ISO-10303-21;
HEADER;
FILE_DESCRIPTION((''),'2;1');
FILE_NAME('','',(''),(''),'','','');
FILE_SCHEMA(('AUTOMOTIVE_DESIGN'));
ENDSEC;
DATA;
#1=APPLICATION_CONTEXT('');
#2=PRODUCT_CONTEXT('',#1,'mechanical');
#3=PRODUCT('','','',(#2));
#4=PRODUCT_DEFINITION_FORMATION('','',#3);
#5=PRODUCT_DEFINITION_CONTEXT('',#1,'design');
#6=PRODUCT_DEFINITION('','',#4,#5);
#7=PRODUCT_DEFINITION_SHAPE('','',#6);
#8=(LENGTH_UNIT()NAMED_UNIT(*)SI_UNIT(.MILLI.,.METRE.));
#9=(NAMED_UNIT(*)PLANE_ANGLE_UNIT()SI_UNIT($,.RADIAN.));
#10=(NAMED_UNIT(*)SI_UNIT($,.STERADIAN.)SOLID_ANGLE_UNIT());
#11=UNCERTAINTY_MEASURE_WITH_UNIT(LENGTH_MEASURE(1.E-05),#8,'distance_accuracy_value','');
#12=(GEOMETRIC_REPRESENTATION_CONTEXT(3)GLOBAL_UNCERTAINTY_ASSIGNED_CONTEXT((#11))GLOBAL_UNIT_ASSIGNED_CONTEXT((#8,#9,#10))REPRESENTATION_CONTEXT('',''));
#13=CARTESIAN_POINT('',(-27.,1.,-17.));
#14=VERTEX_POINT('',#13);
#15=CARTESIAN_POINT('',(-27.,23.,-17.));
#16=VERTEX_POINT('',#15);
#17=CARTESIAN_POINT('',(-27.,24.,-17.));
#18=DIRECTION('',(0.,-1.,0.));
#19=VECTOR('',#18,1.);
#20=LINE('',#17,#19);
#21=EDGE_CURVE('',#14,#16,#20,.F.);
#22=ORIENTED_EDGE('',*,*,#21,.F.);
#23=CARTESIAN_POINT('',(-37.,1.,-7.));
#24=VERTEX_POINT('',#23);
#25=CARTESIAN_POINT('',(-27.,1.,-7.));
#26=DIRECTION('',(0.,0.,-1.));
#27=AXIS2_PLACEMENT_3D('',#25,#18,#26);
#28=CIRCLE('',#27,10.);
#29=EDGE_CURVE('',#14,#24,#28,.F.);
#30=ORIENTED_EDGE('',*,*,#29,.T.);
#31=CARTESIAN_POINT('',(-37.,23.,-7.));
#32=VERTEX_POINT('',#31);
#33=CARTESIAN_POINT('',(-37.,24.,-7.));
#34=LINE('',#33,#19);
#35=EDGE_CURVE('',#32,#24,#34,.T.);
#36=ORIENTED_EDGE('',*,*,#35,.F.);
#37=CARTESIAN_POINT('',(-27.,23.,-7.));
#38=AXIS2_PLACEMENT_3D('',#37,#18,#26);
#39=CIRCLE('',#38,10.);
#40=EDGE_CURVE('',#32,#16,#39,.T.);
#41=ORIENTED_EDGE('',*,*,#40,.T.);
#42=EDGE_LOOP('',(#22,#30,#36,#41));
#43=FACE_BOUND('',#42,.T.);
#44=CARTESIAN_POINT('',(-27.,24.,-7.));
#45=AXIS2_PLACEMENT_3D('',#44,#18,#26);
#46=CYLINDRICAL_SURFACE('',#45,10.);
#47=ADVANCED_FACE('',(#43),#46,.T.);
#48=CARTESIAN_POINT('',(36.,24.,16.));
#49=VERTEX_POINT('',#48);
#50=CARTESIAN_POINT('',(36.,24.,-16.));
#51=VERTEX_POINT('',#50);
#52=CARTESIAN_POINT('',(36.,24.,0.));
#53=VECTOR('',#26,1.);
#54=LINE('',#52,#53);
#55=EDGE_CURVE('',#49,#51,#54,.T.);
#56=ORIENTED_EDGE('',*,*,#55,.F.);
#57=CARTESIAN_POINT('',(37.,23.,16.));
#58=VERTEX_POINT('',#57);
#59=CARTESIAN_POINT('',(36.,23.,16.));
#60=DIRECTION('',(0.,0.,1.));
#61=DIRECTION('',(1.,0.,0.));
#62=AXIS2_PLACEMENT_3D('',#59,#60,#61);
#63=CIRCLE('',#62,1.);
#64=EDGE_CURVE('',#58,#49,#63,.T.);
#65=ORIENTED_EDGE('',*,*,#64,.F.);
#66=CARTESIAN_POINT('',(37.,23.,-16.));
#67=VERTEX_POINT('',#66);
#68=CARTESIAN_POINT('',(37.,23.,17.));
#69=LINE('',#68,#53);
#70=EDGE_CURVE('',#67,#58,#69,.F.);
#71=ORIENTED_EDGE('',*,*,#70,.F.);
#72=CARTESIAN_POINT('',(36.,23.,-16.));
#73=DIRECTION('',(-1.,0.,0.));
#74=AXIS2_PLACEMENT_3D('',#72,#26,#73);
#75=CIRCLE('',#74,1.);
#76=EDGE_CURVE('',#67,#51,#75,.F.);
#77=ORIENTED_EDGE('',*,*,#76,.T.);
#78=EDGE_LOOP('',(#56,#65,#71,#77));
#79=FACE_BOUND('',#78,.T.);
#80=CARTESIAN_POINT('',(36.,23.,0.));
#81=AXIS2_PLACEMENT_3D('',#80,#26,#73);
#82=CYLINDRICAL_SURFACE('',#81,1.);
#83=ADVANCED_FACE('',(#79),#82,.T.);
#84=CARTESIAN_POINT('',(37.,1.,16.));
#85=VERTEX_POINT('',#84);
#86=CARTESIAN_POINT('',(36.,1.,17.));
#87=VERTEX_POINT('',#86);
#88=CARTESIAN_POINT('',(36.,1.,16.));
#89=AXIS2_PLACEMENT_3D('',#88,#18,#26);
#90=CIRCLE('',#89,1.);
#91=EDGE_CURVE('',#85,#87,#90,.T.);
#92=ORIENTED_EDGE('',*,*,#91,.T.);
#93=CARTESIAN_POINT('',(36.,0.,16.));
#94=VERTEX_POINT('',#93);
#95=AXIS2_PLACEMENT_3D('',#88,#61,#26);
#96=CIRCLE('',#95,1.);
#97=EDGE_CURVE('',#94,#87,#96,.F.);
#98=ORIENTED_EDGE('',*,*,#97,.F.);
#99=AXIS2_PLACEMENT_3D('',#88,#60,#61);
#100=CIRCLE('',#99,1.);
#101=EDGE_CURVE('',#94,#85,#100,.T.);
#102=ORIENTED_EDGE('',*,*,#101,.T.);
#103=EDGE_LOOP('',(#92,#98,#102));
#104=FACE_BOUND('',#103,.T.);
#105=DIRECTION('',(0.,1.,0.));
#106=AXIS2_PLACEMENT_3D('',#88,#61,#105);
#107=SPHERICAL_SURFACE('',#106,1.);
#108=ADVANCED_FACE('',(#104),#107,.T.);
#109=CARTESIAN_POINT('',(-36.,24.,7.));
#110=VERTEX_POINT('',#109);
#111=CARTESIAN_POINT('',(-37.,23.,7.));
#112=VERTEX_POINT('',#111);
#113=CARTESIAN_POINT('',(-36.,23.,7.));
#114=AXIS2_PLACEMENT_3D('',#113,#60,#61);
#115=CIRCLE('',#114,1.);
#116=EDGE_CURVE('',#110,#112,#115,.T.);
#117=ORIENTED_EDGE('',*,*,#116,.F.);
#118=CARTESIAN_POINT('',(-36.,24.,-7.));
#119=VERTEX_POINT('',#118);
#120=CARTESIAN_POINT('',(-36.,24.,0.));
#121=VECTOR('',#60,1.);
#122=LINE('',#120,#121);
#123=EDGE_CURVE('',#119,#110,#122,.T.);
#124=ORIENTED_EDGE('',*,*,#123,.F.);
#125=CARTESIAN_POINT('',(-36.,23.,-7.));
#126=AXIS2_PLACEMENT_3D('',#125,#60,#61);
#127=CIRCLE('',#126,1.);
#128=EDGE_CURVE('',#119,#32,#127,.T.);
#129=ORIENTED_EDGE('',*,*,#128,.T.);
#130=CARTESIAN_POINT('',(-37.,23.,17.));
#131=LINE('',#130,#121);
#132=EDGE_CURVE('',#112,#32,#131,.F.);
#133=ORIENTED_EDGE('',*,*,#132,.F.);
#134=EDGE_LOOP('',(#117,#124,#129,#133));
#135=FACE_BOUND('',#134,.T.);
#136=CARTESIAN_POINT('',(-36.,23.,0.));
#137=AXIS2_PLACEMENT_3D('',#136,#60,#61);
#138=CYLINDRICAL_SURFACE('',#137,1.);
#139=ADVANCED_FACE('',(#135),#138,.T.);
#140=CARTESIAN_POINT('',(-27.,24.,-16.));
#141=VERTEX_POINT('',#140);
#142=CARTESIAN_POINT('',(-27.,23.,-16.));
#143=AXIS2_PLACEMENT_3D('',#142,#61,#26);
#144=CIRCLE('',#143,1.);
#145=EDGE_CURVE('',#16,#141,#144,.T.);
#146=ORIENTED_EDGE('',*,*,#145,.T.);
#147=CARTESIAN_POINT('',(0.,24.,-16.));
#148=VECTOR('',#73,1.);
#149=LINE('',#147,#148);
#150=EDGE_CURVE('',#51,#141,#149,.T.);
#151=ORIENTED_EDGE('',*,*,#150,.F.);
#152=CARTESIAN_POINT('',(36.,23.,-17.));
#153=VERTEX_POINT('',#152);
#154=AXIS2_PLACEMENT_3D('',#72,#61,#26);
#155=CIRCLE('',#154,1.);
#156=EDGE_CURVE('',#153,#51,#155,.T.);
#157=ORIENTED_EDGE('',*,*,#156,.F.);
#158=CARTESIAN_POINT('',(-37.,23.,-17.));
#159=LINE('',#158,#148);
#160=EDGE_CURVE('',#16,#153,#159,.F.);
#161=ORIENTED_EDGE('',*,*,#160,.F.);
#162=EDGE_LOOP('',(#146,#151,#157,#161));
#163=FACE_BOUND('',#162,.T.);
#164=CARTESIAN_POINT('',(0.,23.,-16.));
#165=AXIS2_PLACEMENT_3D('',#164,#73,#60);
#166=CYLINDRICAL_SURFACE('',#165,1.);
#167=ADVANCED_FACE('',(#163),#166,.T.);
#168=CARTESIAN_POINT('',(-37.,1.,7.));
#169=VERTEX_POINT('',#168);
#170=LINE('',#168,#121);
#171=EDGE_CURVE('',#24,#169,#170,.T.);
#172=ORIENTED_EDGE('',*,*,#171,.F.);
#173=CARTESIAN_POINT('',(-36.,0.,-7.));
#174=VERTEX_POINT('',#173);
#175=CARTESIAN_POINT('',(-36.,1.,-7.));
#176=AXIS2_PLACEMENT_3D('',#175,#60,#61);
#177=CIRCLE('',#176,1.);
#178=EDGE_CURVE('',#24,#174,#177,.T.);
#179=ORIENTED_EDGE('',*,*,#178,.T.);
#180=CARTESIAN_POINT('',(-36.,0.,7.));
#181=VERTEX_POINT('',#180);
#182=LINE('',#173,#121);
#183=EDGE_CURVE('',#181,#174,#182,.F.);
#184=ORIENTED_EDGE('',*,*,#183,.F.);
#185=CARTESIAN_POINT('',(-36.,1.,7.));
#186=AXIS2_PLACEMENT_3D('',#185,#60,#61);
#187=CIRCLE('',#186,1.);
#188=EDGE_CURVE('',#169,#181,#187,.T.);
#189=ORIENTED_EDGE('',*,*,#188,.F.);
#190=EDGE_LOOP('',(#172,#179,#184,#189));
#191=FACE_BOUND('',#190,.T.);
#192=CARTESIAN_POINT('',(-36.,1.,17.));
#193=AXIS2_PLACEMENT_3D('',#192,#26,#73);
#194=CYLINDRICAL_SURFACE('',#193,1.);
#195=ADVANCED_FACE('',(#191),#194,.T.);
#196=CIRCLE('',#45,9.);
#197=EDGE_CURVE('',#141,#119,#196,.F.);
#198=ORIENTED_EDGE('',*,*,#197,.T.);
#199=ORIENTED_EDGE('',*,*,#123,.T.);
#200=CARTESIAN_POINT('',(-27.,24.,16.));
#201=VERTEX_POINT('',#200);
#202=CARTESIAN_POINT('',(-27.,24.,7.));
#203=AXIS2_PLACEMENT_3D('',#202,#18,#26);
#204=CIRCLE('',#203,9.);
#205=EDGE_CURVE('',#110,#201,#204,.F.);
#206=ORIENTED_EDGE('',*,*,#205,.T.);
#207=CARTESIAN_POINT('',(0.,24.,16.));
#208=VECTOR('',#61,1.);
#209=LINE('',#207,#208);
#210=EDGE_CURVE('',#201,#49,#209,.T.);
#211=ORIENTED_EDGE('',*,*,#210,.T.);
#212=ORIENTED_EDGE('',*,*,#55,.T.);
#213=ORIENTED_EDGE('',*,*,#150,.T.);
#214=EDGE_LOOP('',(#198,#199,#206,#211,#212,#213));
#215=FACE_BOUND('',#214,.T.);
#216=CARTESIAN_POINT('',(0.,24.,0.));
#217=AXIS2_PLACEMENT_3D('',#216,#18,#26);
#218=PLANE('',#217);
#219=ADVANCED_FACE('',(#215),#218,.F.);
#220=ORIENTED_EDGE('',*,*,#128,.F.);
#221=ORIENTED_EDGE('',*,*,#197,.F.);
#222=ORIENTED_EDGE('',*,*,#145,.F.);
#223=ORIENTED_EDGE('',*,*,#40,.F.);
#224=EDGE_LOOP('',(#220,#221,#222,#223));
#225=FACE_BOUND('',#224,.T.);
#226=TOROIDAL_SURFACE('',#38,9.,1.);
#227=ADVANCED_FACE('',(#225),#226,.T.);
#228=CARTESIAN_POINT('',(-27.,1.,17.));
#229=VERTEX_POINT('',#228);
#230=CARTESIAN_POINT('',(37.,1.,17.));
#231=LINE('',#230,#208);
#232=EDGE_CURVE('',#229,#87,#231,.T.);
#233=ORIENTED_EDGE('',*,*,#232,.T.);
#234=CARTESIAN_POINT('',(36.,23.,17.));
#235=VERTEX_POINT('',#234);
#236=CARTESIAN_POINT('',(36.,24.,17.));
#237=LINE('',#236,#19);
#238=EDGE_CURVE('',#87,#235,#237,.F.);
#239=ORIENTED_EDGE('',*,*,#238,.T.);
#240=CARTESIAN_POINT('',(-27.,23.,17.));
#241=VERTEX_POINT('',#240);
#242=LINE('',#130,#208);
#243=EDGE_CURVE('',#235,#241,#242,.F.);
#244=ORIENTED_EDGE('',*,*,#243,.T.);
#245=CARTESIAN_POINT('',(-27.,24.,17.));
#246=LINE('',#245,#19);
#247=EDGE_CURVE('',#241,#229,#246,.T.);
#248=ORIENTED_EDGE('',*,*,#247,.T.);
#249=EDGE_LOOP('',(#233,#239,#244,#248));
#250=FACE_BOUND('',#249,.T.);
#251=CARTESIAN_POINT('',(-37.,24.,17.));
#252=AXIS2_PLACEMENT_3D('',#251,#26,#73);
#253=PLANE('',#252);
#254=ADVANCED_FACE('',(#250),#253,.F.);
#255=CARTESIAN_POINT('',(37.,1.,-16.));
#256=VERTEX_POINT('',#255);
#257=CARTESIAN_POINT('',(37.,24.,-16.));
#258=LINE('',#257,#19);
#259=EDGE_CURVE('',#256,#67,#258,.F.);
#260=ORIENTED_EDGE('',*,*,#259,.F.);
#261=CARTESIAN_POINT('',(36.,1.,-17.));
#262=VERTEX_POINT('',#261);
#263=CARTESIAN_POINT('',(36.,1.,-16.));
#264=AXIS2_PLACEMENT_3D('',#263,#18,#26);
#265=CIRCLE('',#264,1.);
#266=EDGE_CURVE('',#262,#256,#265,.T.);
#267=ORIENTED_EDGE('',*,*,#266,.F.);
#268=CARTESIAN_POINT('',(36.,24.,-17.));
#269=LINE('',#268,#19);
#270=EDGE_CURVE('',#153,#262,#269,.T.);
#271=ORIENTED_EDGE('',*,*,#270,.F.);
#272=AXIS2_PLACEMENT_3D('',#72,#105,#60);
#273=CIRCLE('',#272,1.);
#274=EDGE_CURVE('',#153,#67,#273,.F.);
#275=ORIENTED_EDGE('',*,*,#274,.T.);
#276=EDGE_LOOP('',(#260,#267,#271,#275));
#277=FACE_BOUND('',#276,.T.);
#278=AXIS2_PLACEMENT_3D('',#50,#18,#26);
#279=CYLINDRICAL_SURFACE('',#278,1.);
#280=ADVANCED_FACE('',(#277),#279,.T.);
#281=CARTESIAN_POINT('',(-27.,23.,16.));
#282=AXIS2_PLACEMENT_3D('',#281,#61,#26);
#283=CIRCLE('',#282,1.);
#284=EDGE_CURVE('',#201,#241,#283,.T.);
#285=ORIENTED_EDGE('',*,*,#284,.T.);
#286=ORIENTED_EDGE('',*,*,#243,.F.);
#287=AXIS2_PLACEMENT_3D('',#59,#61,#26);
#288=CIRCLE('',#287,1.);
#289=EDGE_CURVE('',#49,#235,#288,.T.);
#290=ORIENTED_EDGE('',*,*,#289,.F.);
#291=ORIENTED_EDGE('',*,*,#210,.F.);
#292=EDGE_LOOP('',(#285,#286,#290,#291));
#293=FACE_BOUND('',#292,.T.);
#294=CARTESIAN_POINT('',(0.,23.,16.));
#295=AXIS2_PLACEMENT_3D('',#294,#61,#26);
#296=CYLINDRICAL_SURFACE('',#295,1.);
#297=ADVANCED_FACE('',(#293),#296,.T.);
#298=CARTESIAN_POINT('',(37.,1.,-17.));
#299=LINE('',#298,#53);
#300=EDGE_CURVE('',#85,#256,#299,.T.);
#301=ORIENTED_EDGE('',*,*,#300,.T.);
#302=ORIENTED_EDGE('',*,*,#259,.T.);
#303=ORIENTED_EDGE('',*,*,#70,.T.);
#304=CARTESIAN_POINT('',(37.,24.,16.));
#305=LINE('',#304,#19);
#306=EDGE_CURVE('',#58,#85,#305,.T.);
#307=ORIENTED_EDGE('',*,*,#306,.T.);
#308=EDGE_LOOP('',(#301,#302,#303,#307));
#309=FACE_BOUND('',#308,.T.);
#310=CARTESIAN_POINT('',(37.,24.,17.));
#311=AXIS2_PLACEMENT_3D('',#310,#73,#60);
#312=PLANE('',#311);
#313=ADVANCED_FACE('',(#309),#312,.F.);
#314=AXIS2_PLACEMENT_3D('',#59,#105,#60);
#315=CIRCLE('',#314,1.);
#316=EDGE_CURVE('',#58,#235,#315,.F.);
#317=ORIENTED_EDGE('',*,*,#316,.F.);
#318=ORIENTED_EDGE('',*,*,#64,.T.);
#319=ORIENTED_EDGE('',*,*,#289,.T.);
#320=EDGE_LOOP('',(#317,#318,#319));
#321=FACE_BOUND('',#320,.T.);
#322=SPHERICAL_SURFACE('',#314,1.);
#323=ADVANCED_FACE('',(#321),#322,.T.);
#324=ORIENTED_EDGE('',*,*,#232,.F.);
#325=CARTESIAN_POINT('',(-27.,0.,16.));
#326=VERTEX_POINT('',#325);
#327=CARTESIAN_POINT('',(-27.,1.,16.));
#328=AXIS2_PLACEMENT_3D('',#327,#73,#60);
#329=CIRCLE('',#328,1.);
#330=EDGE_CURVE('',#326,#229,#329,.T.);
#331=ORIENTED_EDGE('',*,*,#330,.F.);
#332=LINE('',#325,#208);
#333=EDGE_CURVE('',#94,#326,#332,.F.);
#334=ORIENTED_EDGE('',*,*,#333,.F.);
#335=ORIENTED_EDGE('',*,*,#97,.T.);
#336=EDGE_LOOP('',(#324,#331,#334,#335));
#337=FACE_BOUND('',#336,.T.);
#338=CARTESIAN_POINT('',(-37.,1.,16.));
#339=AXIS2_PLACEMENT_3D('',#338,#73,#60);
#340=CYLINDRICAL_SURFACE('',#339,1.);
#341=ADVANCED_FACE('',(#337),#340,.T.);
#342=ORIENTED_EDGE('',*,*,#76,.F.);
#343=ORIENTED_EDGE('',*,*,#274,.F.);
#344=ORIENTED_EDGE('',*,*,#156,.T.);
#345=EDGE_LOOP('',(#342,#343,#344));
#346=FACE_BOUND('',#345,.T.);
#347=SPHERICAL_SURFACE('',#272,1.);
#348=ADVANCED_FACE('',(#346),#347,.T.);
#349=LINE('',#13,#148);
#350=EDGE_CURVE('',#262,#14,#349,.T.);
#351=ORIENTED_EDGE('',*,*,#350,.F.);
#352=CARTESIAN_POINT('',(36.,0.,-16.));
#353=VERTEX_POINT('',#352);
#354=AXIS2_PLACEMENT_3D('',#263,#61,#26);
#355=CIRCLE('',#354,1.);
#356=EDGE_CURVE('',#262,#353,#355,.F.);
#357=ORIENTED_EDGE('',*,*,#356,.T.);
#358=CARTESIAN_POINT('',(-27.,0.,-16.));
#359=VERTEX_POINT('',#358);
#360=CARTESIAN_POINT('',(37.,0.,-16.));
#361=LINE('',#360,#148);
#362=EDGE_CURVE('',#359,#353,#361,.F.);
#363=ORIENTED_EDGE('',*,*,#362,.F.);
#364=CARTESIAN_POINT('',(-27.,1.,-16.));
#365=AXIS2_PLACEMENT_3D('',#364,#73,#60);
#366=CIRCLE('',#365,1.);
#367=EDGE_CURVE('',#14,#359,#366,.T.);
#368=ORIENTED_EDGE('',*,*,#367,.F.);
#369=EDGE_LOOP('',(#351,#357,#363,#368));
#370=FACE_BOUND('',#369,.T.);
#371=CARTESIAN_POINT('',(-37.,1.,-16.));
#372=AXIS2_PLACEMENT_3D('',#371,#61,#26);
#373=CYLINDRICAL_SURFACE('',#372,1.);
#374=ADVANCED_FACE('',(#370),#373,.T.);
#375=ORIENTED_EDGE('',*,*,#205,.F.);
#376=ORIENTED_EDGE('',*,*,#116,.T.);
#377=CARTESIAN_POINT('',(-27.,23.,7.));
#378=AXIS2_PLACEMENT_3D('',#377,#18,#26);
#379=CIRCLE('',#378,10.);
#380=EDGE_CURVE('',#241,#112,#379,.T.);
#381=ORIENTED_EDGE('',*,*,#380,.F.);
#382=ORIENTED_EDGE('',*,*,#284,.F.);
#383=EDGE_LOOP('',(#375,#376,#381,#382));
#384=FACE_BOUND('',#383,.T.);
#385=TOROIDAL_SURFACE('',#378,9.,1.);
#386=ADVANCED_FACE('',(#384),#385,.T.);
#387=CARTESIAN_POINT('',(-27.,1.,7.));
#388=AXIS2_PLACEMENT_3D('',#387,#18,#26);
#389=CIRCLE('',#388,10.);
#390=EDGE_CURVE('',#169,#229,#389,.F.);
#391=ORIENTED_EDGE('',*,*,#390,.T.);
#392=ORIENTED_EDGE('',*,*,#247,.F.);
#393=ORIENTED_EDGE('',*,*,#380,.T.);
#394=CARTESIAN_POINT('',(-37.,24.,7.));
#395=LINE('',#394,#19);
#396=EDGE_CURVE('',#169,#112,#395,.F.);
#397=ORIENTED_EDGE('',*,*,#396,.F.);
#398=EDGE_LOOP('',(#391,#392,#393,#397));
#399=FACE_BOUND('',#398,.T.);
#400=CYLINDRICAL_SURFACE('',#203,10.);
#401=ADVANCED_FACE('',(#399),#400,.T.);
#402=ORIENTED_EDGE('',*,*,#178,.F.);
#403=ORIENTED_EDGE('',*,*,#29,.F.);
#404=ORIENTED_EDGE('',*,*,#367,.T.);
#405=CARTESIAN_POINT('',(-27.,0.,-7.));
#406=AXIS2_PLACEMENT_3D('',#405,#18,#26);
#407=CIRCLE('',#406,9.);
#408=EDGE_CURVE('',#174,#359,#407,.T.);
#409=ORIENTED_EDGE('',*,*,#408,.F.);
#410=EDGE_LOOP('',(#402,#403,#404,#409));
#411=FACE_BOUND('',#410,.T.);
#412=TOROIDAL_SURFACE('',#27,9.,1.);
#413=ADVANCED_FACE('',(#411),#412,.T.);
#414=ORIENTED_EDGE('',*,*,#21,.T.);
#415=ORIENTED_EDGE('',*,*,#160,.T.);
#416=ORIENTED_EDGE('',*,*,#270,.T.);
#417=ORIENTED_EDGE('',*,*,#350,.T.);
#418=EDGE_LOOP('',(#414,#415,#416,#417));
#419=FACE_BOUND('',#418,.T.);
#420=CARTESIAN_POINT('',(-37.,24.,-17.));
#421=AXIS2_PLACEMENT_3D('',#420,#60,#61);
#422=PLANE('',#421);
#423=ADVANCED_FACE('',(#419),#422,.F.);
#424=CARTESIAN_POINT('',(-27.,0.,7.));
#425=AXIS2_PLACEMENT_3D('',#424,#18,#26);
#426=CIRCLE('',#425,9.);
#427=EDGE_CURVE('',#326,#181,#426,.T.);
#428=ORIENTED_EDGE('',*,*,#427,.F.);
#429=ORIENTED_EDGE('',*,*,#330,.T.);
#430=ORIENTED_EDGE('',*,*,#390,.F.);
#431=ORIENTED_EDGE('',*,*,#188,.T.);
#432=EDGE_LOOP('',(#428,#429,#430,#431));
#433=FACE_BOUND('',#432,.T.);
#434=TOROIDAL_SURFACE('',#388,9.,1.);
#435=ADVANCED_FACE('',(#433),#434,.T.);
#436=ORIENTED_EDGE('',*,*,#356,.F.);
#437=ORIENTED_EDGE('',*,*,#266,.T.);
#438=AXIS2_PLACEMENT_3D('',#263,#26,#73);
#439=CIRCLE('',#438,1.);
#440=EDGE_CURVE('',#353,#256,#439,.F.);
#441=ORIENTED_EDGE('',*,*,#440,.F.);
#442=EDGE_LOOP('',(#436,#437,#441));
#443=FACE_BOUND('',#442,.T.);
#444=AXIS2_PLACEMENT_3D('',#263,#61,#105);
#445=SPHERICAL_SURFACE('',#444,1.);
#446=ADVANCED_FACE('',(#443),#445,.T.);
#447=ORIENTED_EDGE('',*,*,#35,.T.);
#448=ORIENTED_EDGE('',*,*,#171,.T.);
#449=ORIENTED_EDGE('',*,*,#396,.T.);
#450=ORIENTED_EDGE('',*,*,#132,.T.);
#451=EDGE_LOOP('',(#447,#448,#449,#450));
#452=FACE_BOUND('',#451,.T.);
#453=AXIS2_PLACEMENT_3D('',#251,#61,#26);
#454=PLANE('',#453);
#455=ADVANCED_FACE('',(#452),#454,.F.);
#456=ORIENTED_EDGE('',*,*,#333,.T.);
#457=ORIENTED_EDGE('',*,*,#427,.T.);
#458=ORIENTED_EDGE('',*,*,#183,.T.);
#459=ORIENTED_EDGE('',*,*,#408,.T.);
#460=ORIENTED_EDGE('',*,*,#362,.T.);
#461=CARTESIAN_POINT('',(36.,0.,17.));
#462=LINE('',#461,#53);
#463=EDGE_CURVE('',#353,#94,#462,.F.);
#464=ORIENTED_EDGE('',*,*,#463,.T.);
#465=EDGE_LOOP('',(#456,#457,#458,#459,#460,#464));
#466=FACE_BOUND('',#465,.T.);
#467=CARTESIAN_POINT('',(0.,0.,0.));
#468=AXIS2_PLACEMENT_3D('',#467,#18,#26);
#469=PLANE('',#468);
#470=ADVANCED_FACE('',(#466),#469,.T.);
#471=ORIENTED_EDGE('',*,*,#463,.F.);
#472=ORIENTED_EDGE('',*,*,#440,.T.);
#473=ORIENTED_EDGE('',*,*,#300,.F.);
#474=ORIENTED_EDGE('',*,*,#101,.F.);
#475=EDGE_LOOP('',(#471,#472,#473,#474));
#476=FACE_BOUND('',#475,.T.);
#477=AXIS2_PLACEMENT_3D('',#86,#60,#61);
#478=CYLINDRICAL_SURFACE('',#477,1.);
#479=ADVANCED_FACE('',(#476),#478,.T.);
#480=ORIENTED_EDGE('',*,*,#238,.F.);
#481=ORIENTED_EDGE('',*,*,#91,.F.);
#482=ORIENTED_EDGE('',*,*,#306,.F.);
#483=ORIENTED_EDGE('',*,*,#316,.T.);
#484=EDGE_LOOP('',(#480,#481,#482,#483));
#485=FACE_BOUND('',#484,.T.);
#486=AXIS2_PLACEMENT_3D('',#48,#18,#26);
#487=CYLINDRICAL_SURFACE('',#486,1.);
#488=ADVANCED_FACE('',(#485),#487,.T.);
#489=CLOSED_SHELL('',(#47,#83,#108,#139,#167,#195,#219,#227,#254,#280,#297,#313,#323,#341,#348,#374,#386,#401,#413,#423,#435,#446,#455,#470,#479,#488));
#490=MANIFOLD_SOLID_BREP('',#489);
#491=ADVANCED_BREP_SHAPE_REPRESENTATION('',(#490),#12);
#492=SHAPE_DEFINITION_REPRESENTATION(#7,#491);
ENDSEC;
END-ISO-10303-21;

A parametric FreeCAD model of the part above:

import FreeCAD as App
import Part
import Sketcher


def edges_at(feature, points):
    """Names of the edges that pass closest to the given points."""
    edges = feature.Shape.Edges
    near = lambda p: min(range(len(edges)), key=lambda i: edges[i].distToShape(Part.Vertex(*p))[0])
    return sorted({f"Edge{near(p) + 1}" for p in points})


def add_polygon(sketch, points):
    """Adds a closed chain of lines whose ends are joined by coincident constraints."""
    first, n = sketch.GeometryCount, len(points)
    for a, b in zip(points, points[1:] + points[:1]):
        sketch.addGeometry(Part.LineSegment(App.Vector(*a, 0), App.Vector(*b, 0)), False)
    for i in range(n):
        sketch.addConstraint(Sketcher.Constraint("Coincident", first + i, 2, first + (i + 1) % n, 1))

doc = App.newDocument("Part")
body = doc.addObject("PartDesign::Body", "Body")

# Sketch on XZ plane
sketch1 = body.newObject("Sketcher::SketchObject", "Sketch")
sketch1.AttachmentSupport = (doc.getObject("XZ_Plane"), [""])
sketch1.MapMode = "FlatFace"
add_polygon(sketch1, [(-37, -17), (-37, 17), (37, 17), (37, -17)])  # lines 0-3
sketch1.addConstraint(Sketcher.Constraint("Vertical", 0))
sketch1.addConstraint(Sketcher.Constraint("Horizontal", 1))
sketch1.addConstraint(Sketcher.Constraint("Vertical", 2))
sketch1.addConstraint(Sketcher.Constraint("Horizontal", 3))
sketch1.addConstraint(Sketcher.Constraint("Symmetric", 0, 2, 2, 2, -1, 1))
sketch1.addConstraint(Sketcher.Constraint("DistanceX", 1, 1, 1, 2, 74.0))
sketch1.addConstraint(Sketcher.Constraint("DistanceY", 0, 1, 0, 2, 34.0))
pad1 = body.newObject("PartDesign::Pad", "Pad")
pad1.Profile = sketch1
pad1.Length = 24
pad1.Reversed = True
doc.recompute()

fillet = body.newObject("PartDesign::Fillet", "Fillet")
fillet.Base = (pad1, edges_at(pad1, [(-37, 12, 17), (-37, 12, -17)]))
fillet.Radius = 10
doc.recompute()

fillet2 = body.newObject("PartDesign::Fillet", "Fillet001")
fillet2.Base = (fillet, ["Edge1"])
fillet2.UseAllEdges = True
fillet2.Radius = 1

doc.recompute()
